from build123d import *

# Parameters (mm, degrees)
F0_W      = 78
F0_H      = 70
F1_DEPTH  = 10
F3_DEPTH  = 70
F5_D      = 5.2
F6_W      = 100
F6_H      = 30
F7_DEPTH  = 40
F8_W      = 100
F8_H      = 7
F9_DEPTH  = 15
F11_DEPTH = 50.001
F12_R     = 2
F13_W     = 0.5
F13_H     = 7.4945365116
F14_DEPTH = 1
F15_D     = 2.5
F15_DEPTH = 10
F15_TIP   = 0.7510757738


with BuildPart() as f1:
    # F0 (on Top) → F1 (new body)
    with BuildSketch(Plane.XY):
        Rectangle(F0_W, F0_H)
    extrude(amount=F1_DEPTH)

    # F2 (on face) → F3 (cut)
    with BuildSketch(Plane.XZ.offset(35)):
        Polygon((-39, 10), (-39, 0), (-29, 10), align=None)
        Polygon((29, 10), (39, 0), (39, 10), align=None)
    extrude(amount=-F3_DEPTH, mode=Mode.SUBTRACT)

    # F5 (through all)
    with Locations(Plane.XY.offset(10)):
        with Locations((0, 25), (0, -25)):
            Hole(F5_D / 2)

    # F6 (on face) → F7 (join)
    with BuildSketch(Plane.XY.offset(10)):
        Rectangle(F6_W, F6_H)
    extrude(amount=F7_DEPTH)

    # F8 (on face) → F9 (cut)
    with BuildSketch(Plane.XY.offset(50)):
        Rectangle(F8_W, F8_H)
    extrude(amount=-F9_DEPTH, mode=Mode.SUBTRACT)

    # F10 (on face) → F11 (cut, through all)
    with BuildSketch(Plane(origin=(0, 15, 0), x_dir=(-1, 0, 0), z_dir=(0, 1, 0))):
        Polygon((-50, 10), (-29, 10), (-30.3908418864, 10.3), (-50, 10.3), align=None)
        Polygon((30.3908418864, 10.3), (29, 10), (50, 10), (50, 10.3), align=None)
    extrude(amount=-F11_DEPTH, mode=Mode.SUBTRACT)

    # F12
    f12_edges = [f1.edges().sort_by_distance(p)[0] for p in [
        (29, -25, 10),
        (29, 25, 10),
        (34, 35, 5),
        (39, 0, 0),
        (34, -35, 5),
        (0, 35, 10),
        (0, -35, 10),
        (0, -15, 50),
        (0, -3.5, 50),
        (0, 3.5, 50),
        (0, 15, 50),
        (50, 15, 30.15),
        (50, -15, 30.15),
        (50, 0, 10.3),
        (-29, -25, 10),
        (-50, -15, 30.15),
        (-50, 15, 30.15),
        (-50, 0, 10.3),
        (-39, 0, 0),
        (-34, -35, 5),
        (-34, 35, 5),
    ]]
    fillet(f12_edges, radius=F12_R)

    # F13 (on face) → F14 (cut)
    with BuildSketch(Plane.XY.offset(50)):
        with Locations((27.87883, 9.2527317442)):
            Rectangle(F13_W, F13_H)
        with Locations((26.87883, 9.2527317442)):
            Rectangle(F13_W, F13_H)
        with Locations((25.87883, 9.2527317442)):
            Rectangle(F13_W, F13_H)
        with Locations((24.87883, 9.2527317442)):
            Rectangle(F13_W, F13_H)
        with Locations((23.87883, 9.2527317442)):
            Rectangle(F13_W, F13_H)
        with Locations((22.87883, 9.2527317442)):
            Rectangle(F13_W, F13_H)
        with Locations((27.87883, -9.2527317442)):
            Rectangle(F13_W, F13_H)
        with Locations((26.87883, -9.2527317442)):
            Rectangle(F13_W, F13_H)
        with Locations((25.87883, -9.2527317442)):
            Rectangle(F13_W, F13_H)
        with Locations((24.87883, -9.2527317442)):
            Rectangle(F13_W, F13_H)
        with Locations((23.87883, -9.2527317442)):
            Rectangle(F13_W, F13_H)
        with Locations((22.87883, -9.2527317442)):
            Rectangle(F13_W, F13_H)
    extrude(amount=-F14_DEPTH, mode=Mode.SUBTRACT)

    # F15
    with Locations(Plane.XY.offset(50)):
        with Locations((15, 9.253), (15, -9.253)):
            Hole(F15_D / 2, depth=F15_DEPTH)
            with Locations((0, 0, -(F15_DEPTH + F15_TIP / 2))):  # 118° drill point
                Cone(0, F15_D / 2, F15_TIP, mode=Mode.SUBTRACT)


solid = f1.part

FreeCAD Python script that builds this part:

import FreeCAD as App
import Part
import Sketcher

V = App.Vector
Q = App.Units.Quantity


def edges_at(feature, points):
    """Names of the edges that pass closest to the given points."""
    edges = feature.Shape.Edges
    near = lambda p: min(range(len(edges)), key=lambda i: edges[i].distToShape(Part.Vertex(*p))[0])
    return sorted({f"Edge{near(p) + 1}" for p in points})

doc = App.newDocument("Part")
params = doc.addObject("Spreadsheet::Sheet", "Params")
for row, (alias, value) in enumerate([
    ("sketch1_width", "78 mm"),
    ("sketch1_height", "70 mm"),
    ("pad1_length", "10 mm"),
    ("sketch2_width", "10 mm"),
    ("pocket1_length", "70 mm"),
    ("sketch3_diameter", "5.2 mm"),
    ("hole_diameter", "5.2 mm"),
    ("sketch4_width", "100 mm"),
    ("sketch4_height", "30 mm"),
    ("pad2_length", "40 mm"),
    ("sketch5_width", "100 mm"),
    ("sketch5_height", "7 mm"),
    ("pocket2_length", "15 mm"),
    ("sketch6_width", "21 mm"),
    ("sketch6_height", "0.3 mm"),
    ("fillet_radius", "2 mm"),
    ("sketch7_width", "0.5 mm"),
    ("pocket4_length", "1 mm"),
    ("sketch8_diameter", "2.5 mm"),
    ("hole2_diameter", "2.5 mm"),
    ("hole2_depth", "10 mm"),
], start=1):
    params.set(f"A{row}", alias)
    params.set(f"B{row}", "=" + value)
    params.setAlias(f"B{row}", alias)

body = doc.addObject("PartDesign::Body", "Body")

# Sketch on XY plane
sketch1 = doc.addObject("Sketcher::SketchObject", "Sketch")
body.addObject(sketch1)
sketch1.AttachmentSupport = (doc.XY_Plane, [""])
sketch1.MapMode = "FlatFace"
sketch1.addGeometry([
    Part.LineSegment(V(-39, 35, 0), V(-39, -35, 0)),
    Part.LineSegment(V(-39, -35, 0), V(39, -35, 0)),
    Part.LineSegment(V(39, -35, 0), V(39, 35, 0)),
    Part.LineSegment(V(39, 35, 0), V(-39, 35, 0)),
], False)
sketch1.addConstraint([
    Sketcher.Constraint("Coincident", 0, 2, 1, 1),
    Sketcher.Constraint("Coincident", 1, 2, 2, 1),
    Sketcher.Constraint("Coincident", 2, 2, 3, 1),
    Sketcher.Constraint("Coincident", 3, 2, 0, 1),
    Sketcher.Constraint("Vertical", 0),
    Sketcher.Constraint("Horizontal", 1),
    Sketcher.Constraint("Vertical", 2),
    Sketcher.Constraint("Horizontal", 3),
    Sketcher.Constraint("Symmetric", 0, 2, 2, 2, -1, 1),
    Sketcher.Constraint("DistanceX", 1, 1, 1, 2, Q("78 mm")),
    Sketcher.Constraint("DistanceY", 0, 2, 0, 1, Q("70 mm")),
])
sketch1.setExpression("Constraints[9]", "Params.sketch1_width")
sketch1.setExpression("Constraints[10]", "Params.sketch1_height")
pad1 = doc.addObject("PartDesign::Pad", "Pad")
body.addObject(pad1)
pad1.Profile = sketch1
pad1.setExpression("Length", "Params.pad1_length")

# Sketch on XZ plane
sketch2 = doc.addObject("Sketcher::SketchObject", "Sketch001")
body.addObject(sketch2)
sketch2.AttachmentSupport = (doc.XZ_Plane, [""])
sketch2.MapMode = "FlatFace"
sketch2.AttachmentOffset = App.Placement(V(0, 0, 35), App.Rotation())
sketch2.addGeometry([
    Part.LineSegment(V(-39, 10, 0), V(-39, 0, 0)),  # 0
    Part.LineSegment(V(-39, 0, 0), V(-29, 10, 0)),  # 1
    Part.LineSegment(V(-29, 10, 0), V(-39, 10, 0)),  # 2
    Part.LineSegment(V(29, 10, 0), V(39, 0, 0)),  # 3
    Part.LineSegment(V(39, 0, 0), V(39, 10, 0)),  # 4
    Part.LineSegment(V(39, 10, 0), V(29, 10, 0)),  # 5
], False)
sketch2.addConstraint([
    Sketcher.Constraint("Coincident", 0, 2, 1, 1),
    Sketcher.Constraint("Coincident", 1, 2, 2, 1),
    Sketcher.Constraint("Coincident", 2, 2, 0, 1),
    Sketcher.Constraint("Coincident", 3, 2, 4, 1),
    Sketcher.Constraint("Coincident", 4, 2, 5, 1),
    Sketcher.Constraint("Coincident", 5, 2, 3, 1),
    Sketcher.Constraint("Vertical", 0),
    Sketcher.Constraint("Horizontal", 2),
    Sketcher.Constraint("Vertical", 4),
    Sketcher.Constraint("Horizontal", 5),
    Sketcher.Constraint("Symmetric", 0, 2, 3, 2, -1, 1),
    Sketcher.Constraint("Symmetric", 1, 2, 5, 2, -2),
    Sketcher.Constraint("PointOnObject", 0, 2, -1),
    Sketcher.Constraint("Perpendicular", 1, 3),
    Sketcher.Constraint("DistanceX", 2, 2, 2, 1, Q("10 mm")),
    Sketcher.Constraint("DistanceX", 0, 2, -1, 1, Q("39 mm")),
])
sketch2.setExpression("Constraints[14]", "Params.sketch2_width")
pocket1 = doc.addObject("PartDesign::Pocket", "Pocket")
body.addObject(pocket1)
pocket1.Profile = sketch2
pocket1.setExpression("Length", "Params.pocket1_length")

# Sketch on XY plane
sketch3 = doc.addObject("Sketcher::SketchObject", "Sketch002")
body.addObject(sketch3)
sketch3.AttachmentSupport = (doc.XY_Plane, [""])
sketch3.MapMode = "FlatFace"
sketch3.AttachmentOffset = App.Placement(V(0, 0, 10), App.Rotation())
sketch3.addGeometry([
    Part.Circle(V(0, 25, 0), V(0, 0, 1), 2.6),
    Part.Circle(V(0, -25, 0), V(0, 0, 1), 2.6),
], False)
sketch3.addConstraint([
    Sketcher.Constraint("Equal", 0, 1),
    Sketcher.Constraint("Symmetric", 0, 3, 1, 3, -1, 1),
    Sketcher.Constraint("PointOnObject", 0, 3, -2),
    Sketcher.Constraint("Diameter", 0, Q("5.2 mm")),
    Sketcher.Constraint("DistanceY", -1, 1, 0, 3, Q("25 mm")),
])
sketch3.setExpression("Constraints[3]", "Params.sketch3_diameter")
doc.recompute()
hole = doc.addObject("PartDesign::Hole", "Hole")
body.addObject(hole)
hole.Profile = sketch3
hole.ThreadType = "None"
hole.setExpression("Diameter", "Params.hole_diameter")
hole.DepthType = "ThroughAll"

# Sketch on XY plane
sketch4 = doc.addObject("Sketcher::SketchObject", "Sketch003")
body.addObject(sketch4)
sketch4.AttachmentSupport = (doc.XY_Plane, [""])
sketch4.MapMode = "FlatFace"
sketch4.AttachmentOffset = App.Placement(V(0, 0, 10), App.Rotation())
sketch4.addGeometry([
    Part.LineSegment(V(-50, 15, 0), V(-50, -15, 0)),
    Part.LineSegment(V(-50, -15, 0), V(50, -15, 0)),
    Part.LineSegment(V(50, -15, 0), V(50, 15, 0)),
    Part.LineSegment(V(50, 15, 0), V(-50, 15, 0)),
], False)
sketch4.addConstraint([
    Sketcher.Constraint("Coincident", 0, 2, 1, 1),
    Sketcher.Constraint("Coincident", 1, 2, 2, 1),
    Sketcher.Constraint("Coincident", 2, 2, 3, 1),
    Sketcher.Constraint("Coincident", 3, 2, 0, 1),
    Sketcher.Constraint("Vertical", 0),
    Sketcher.Constraint("Horizontal", 1),
    Sketcher.Constraint("Vertical", 2),
    Sketcher.Constraint("Horizontal", 3),
    Sketcher.Constraint("Symmetric", 0, 2, 2, 2, -1, 1),
    Sketcher.Constraint("DistanceX", 1, 1, 1, 2, Q("100 mm")),
    Sketcher.Constraint("DistanceY", 0, 2, 0, 1, Q("30 mm")),
])
sketch4.setExpression("Constraints[9]", "Params.sketch4_width")
sketch4.setExpression("Constraints[10]", "Params.sketch4_height")
pad2 = doc.addObject("PartDesign::Pad", "Pad001")
body.addObject(pad2)
pad2.Profile = sketch4
pad2.setExpression("Length", "Params.pad2_length")

# Sketch on XY plane
sketch5 = doc.addObject("Sketcher::SketchObject", "Sketch004")
body.addObject(sketch5)
sketch5.AttachmentSupport = (doc.XY_Plane, [""])
sketch5.MapMode = "FlatFace"
sketch5.AttachmentOffset = App.Placement(V(0, 0, 50), App.Rotation())
sketch5.addGeometry([
    Part.LineSegment(V(-50, 4, 0), V(-50, -4, 0)),
    Part.LineSegment(V(-50, -4, 0), V(50, -4, 0)),
    Part.LineSegment(V(50, -4, 0), V(50, 4, 0)),
    Part.LineSegment(V(50, 4, 0), V(-50, 4, 0)),
], False)
sketch5.addConstraint([
    Sketcher.Constraint("Coincident", 0, 2, 1, 1),
    Sketcher.Constraint("Coincident", 1, 2, 2, 1),
    Sketcher.Constraint("Coincident", 2, 2, 3, 1),
    Sketcher.Constraint("Coincident", 3, 2, 0, 1),
    Sketcher.Constraint("Vertical", 0),
    Sketcher.Constraint("Horizontal", 1),
    Sketcher.Constraint("Vertical", 2),
    Sketcher.Constraint("Horizontal", 3),
    Sketcher.Constraint("Symmetric", 0, 2, 2, 2, -1, 1),
    Sketcher.Constraint("DistanceX", 1, 1, 1, 2, Q("100 mm")),
    Sketcher.Constraint("DistanceY", 0, 2, 0, 1, Q("7 mm")),
])
sketch5.setExpression("Constraints[9]", "Params.sketch5_width")
sketch5.setExpression("Constraints[10]", "Params.sketch5_height")
pocket2 = doc.addObject("PartDesign::Pocket", "Pocket001")
body.addObject(pocket2)
pocket2.Profile = sketch5
pocket2.setExpression("Length", "Params.pocket2_length")

# Sketch on XZ plane
sketch6 = doc.addObject("Sketcher::SketchObject", "Sketch005")
body.addObject(sketch6)
sketch6.AttachmentSupport = (doc.XZ_Plane, [""])
sketch6.MapMode = "FlatFace"
sketch6.AttachmentOffset = App.Placement(V(0, 0, -15), App.Rotation())
sketch6.addGeometry([
    Part.LineSegment(V(50, 10, 0), V(29, 10, 0)),  # 0
    Part.LineSegment(V(29, 10, 0), V(30.39, 10.3, 0)),  # 1
    Part.LineSegment(V(30.39, 10.3, 0), V(50, 10.3, 0)),  # 2
    Part.LineSegment(V(50, 10.3, 0), V(50, 10, 0)),  # 3
    Part.LineSegment(V(-30.39, 10.3, 0), V(-29, 10, 0)),  # 4
    Part.LineSegment(V(-29, 10, 0), V(-50, 10, 0)),  # 5
    Part.LineSegment(V(-50, 10, 0), V(-50, 10.3, 0)),  # 6
    Part.LineSegment(V(-50, 10.3, 0), V(-30.39, 10.3, 0)),  # 7
], False)
sketch6.addConstraint([
    Sketcher.Constraint("Coincident", 0, 2, 1, 1),
    Sketcher.Constraint("Coincident", 1, 2, 2, 1),
    Sketcher.Constraint("Coincident", 2, 2, 3, 1),
    Sketcher.Constraint("Coincident", 3, 2, 0, 1),
    Sketcher.Constraint("Coincident", 4, 2, 5, 1),
    Sketcher.Constraint("Coincident", 5, 2, 6, 1),
    Sketcher.Constraint("Coincident", 6, 2, 7, 1),
    Sketcher.Constraint("Coincident", 7, 2, 4, 1),
    Sketcher.Constraint("Horizontal", 0),
    Sketcher.Constraint("Horizontal", 2),
    Sketcher.Constraint("Vertical", 3),
    Sketcher.Constraint("Horizontal", 5),
    Sketcher.Constraint("Vertical", 6),
    Sketcher.Constraint("Horizontal", 7),
    Sketcher.Constraint("Symmetric", 0, 2, 4, 2, -2),
    Sketcher.Constraint("Symmetric", 2, 2, 6, 2, -2),
    Sketcher.Constraint("Equal", 2, 7),
    Sketcher.Constraint("DistanceX", 0, 2, 0, 1, Q("21 mm")),
    Sketcher.Constraint("DistanceY", 3, 2, 3, 1, Q("0.3 mm")),
    Sketcher.Constraint("DistanceX", -1, 1, 0, 2, Q("29 mm")),
    Sketcher.Constraint("DistanceY", -1, 1, 0, 2, Q("10 mm")),
    Sketcher.Constraint("DistanceX", 2, 1, 2, 2, Q("19.609158 mm")),
])
sketch6.setExpression("Constraints[17]", "Params.sketch6_width")
sketch6.setExpression("Constraints[18]", "Params.sketch6_height")
pocket3 = doc.addObject("PartDesign::Pocket", "Pocket002")
body.addObject(pocket3)
pocket3.Profile = sketch6
pocket3.Type = "ThroughAll"
pocket3.Reversed = True
doc.recompute()

fillet = doc.addObject("PartDesign::Fillet", "Fillet")
body.addObject(fillet)
fillet.Base = (pocket3, edges_at(pocket3, [
    (29, -25, 10),
    (29, 25, 10),
    (34, 35, 5),
    (39, 0, 0),
    (34, -35, 5),
    (0, 35, 10),
    (0, -35, 10),
    (0, -15, 50),
    (0, -3.5, 50),
    (0, 3.5, 50),
    (0, 15, 50),
    (50, 15, 30.15),
    (50, -15, 30.15),
    (50, 0, 10.3),
    (-29, -25, 10),
    (-50, -15, 30.15),
    (-50, 15, 30.15),
    (-50, 0, 10.3),
    (-39, 0, 0),
    (-34, -35, 5),
    (-34, 35, 5),
]))
fillet.setExpression("Radius", "Params.fillet_radius")

# Sketch on XY plane
sketch7 = doc.addObject("Sketcher::SketchObject", "Sketch006")
body.addObject(sketch7)
sketch7.AttachmentSupport = (doc.XY_Plane, [""])
sketch7.MapMode = "FlatFace"
sketch7.AttachmentOffset = App.Placement(V(0, 0, 50), App.Rotation())
sketch7.addGeometry([
    Part.LineSegment(V(27.6, 13, 0), V(27.6, 5.5, 0)),  # 0
    Part.LineSegment(V(27.6, 5.5, 0), V(28.1, 5.5, 0)),  # 1
    Part.LineSegment(V(28.1, 5.5, 0), V(28.1, 13, 0)),  # 2
    Part.LineSegment(V(28.1, 13, 0), V(27.6, 13, 0)),  # 3
    Part.LineSegment(V(26.6, 13, 0), V(26.6, 5.5, 0)),  # 4
    Part.LineSegment(V(26.6, 5.5, 0), V(27.1, 5.5, 0)),  # 5
    Part.LineSegment(V(27.1, 5.5, 0), V(27.1, 13, 0)),  # 6
    Part.LineSegment(V(27.1, 13, 0), V(26.6, 13, 0)),  # 7
    Part.LineSegment(V(25.6, 13, 0), V(25.6, 5.5, 0)),  # 8
    Part.LineSegment(V(25.6, 5.5, 0), V(26.1, 5.5, 0)),  # 9
    Part.LineSegment(V(26.1, 5.5, 0), V(26.1, 13, 0)),  # 10
    Part.LineSegment(V(26.1, 13, 0), V(25.6, 13, 0)),  # 11
    Part.LineSegment(V(24.6, 13, 0), V(24.6, 5.5, 0)),  # 12
    Part.LineSegment(V(24.6, 5.5, 0), V(25.1, 5.5, 0)),  # 13
    Part.LineSegment(V(25.1, 5.5, 0), V(25.1, 13, 0)),  # 14
    Part.LineSegment(V(25.1, 13, 0), V(24.6, 13, 0)),  # 15
    Part.LineSegment(V(23.6, 13, 0), V(23.6, 5.5, 0)),  # 16
    Part.LineSegment(V(23.6, 5.5, 0), V(24.1, 5.5, 0)),  # 17
    Part.LineSegment(V(24.1, 5.5, 0), V(24.1, 13, 0)),  # 18
    Part.LineSegment(V(24.1, 13, 0), V(23.6, 13, 0)),  # 19
    Part.LineSegment(V(22.6, 13, 0), V(22.6, 5.5, 0)),  # 20
    Part.LineSegment(V(22.6, 5.5, 0), V(23.1, 5.5, 0)),  # 21
    Part.LineSegment(V(23.1, 5.5, 0), V(23.1, 13, 0)),  # 22
    Part.LineSegment(V(23.1, 13, 0), V(22.6, 13, 0)),  # 23
    Part.LineSegment(V(27.6, -5.5, 0), V(27.6, -13, 0)),  # 24
    Part.LineSegment(V(27.6, -13, 0), V(28.1, -13, 0)),  # 25
    Part.LineSegment(V(28.1, -13, 0), V(28.1, -5.5, 0)),  # 26
    Part.LineSegment(V(28.1, -5.5, 0), V(27.6, -5.5, 0)),  # 27
    Part.LineSegment(V(26.6, -5.5, 0), V(26.6, -13, 0)),  # 28
    Part.LineSegment(V(26.6, -13, 0), V(27.1, -13, 0)),  # 29
    Part.LineSegment(V(27.1, -13, 0), V(27.1, -5.5, 0)),  # 30
    Part.LineSegment(V(27.1, -5.5, 0), V(26.6, -5.5, 0)),  # 31
    Part.LineSegment(V(25.6, -5.5, 0), V(25.6, -13, 0)),  # 32
    Part.LineSegment(V(25.6, -13, 0), V(26.1, -13, 0)),  # 33
    Part.LineSegment(V(26.1, -13, 0), V(26.1, -5.5, 0)),  # 34
    Part.LineSegment(V(26.1, -5.5, 0), V(25.6, -5.5, 0)),  # 35
    Part.LineSegment(V(24.6, -5.5, 0), V(24.6, -13, 0)),  # 36
    Part.LineSegment(V(24.6, -13, 0), V(25.1, -13, 0)),  # 37
    Part.LineSegment(V(25.1, -13, 0), V(25.1, -5.5, 0)),  # 38
    Part.LineSegment(V(25.1, -5.5, 0), V(24.6, -5.5, 0)),  # 39
    Part.LineSegment(V(23.6, -5.5, 0), V(23.6, -13, 0)),  # 40
    Part.LineSegment(V(23.6, -13, 0), V(24.1, -13, 0)),  # 41
    Part.LineSegment(V(24.1, -13, 0), V(24.1, -5.5, 0)),  # 42
    Part.LineSegment(V(24.1, -5.5, 0), V(23.6, -5.5, 0)),  # 43
    Part.LineSegment(V(22.6, -5.5, 0), V(22.6, -13, 0)),  # 44
    Part.LineSegment(V(22.6, -13, 0), V(23.1, -13, 0)),  # 45
    Part.LineSegment(V(23.1, -13, 0), V(23.1, -5.5, 0)),  # 46
    Part.LineSegment(V(23.1, -5.5, 0), V(22.6, -5.5, 0)),  # 47
], False)
sketch7.addConstraint([
    Sketcher.Constraint("Coincident", 0, 2, 1, 1),
    Sketcher.Constraint("Coincident", 1, 2, 2, 1),
    Sketcher.Constraint("Coincident", 2, 2, 3, 1),
    Sketcher.Constraint("Coincident", 3, 2, 0, 1),
    Sketcher.Constraint("Coincident", 4, 2, 5, 1),
    Sketcher.Constraint("Coincident", 5, 2, 6, 1),
    Sketcher.Constraint("Coincident", 6, 2, 7, 1),
    Sketcher.Constraint("Coincident", 7, 2, 4, 1),
    Sketcher.Constraint("Coincident", 8, 2, 9, 1),
    Sketcher.Constraint("Coincident", 9, 2, 10, 1),
    Sketcher.Constraint("Coincident", 10, 2, 11, 1),
    Sketcher.Constraint("Coincident", 11, 2, 8, 1),
    Sketcher.Constraint("Coincident", 12, 2, 13, 1),
    Sketcher.Constraint("Coincident", 13, 2, 14, 1),
    Sketcher.Constraint("Coincident", 14, 2, 15, 1),
    Sketcher.Constraint("Coincident", 15, 2, 12, 1),
    Sketcher.Constraint("Coincident", 16, 2, 17, 1),
    Sketcher.Constraint("Coincident", 17, 2, 18, 1),
    Sketcher.Constraint("Coincident", 18, 2, 19, 1),
    Sketcher.Constraint("Coincident", 19, 2, 16, 1),
    Sketcher.Constraint("Coincident", 20, 2, 21, 1),
    Sketcher.Constraint("Coincident", 21, 2, 22, 1),
    Sketcher.Constraint("Coincident", 22, 2, 23, 1),
    Sketcher.Constraint("Coincident", 23, 2, 20, 1),
    Sketcher.Constraint("Coincident", 24, 2, 25, 1),
    Sketcher.Constraint("Coincident", 25, 2, 26, 1),
    Sketcher.Constraint("Coincident", 26, 2, 27, 1),
    Sketcher.Constraint("Coincident", 27, 2, 24, 1),
    Sketcher.Constraint("Coincident", 28, 2, 29, 1),
    Sketcher.Constraint("Coincident", 29, 2, 30, 1),
    Sketcher.Constraint("Coincident", 30, 2, 31, 1),
    Sketcher.Constraint("Coincident", 31, 2, 28, 1),
    Sketcher.Constraint("Coincident", 32, 2, 33, 1),
    Sketcher.Constraint("Coincident", 33, 2, 34, 1),
    Sketcher.Constraint("Coincident", 34, 2, 35, 1),
    Sketcher.Constraint("Coincident", 35, 2, 32, 1),
    Sketcher.Constraint("Coincident", 36, 2, 37, 1),
    Sketcher.Constraint("Coincident", 37, 2, 38, 1),
    Sketcher.Constraint("Coincident", 38, 2, 39, 1),
    Sketcher.Constraint("Coincident", 39, 2, 36, 1),
    Sketcher.Constraint("Coincident", 40, 2, 41, 1),
    Sketcher.Constraint("Coincident", 41, 2, 42, 1),
    Sketcher.Constraint("Coincident", 42, 2, 43, 1),
    Sketcher.Constraint("Coincident", 43, 2, 40, 1),
    Sketcher.Constraint("Coincident", 44, 2, 45, 1),
    Sketcher.Constraint("Coincident", 45, 2, 46, 1),
    Sketcher.Constraint("Coincident", 46, 2, 47, 1),
    Sketcher.Constraint("Coincident", 47, 2, 44, 1),
    Sketcher.Constraint("Vertical", 0),
    Sketcher.Constraint("Horizontal", 1),
    Sketcher.Constraint("Vertical", 2),
    Sketcher.Constraint("Horizontal", 3),
    Sketcher.Constraint("Vertical", 4),
    Sketcher.Constraint("Horizontal", 5),
    Sketcher.Constraint("Vertical", 6),
    Sketcher.Constraint("Horizontal", 7),
    Sketcher.Constraint("Vertical", 8),
    Sketcher.Constraint("Horizontal", 9),
    Sketcher.Constraint("Vertical", 10),
    Sketcher.Constraint("Horizontal", 11),
    Sketcher.Constraint("Vertical", 12),
    Sketcher.Constraint("Horizontal", 13),
    Sketcher.Constraint("Vertical", 14),
    Sketcher.Constraint("Horizontal", 15),
    Sketcher.Constraint("Vertical", 16),
    Sketcher.Constraint("Horizontal", 17),
    Sketcher.Constraint("Vertical", 18),
    Sketcher.Constraint("Horizontal", 19),
    Sketcher.Constraint("Vertical", 20),
    Sketcher.Constraint("Horizontal", 21),
    Sketcher.Constraint("Vertical", 22),
    Sketcher.Constraint("Horizontal", 23),
    Sketcher.Constraint("Vertical", 24),
    Sketcher.Constraint("Horizontal", 25),
    Sketcher.Constraint("Vertical", 26),
    Sketcher.Constraint("Horizontal", 27),
    Sketcher.Constraint("Vertical", 28),
    Sketcher.Constraint("Horizontal", 29),
    Sketcher.Constraint("Vertical", 30),
    Sketcher.Constraint("Horizontal", 31),
    Sketcher.Constraint("Vertical", 32),
    Sketcher.Constraint("Horizontal", 33),
    Sketcher.Constraint("Vertical", 34),
    Sketcher.Constraint("Horizontal", 35),
    Sketcher.Constraint("Vertical", 36),
    Sketcher.Constraint("Horizontal", 37),
    Sketcher.Constraint("Vertical", 38),
    Sketcher.Constraint("Horizontal", 39),
    Sketcher.Constraint("Vertical", 40),
    Sketcher.Constraint("Horizontal", 41),
    Sketcher.Constraint("Vertical", 42),
    Sketcher.Constraint("Horizontal", 43),
    Sketcher.Constraint("Vertical", 44),
    Sketcher.Constraint("Horizontal", 45),
    Sketcher.Constraint("Vertical", 46),
    Sketcher.Constraint("Horizontal", 47),
    Sketcher.Constraint("Symmetric", 3, 2, 24, 2, -1),
    Sketcher.Constraint("Symmetric", 1, 2, 26, 2, -1),
    Sketcher.Constraint("Symmetric", 7, 2, 28, 2, -1),
    Sketcher.Constraint("Symmetric", 5, 2, 30, 2, -1),
    Sketcher.Constraint("Symmetric", 11, 2, 32, 2, -1),
    Sketcher.Constraint("Symmetric", 9, 2, 34, 2, -1),
    Sketcher.Constraint("Symmetric", 15, 2, 36, 2, -1),
    Sketcher.Constraint("Symmetric", 13, 2, 38, 2, -1),
    Sketcher.Constraint("Symmetric", 19, 2, 40, 2, -1),
    Sketcher.Constraint("Symmetric", 17, 2, 42, 2, -1),
    Sketcher.Constraint("Symmetric", 23, 2, 44, 2, -1),
    Sketcher.Constraint("Symmetric", 21, 2, 46, 2, -1),
    Sketcher.Constraint("Horizontal", 1, 2, 4, 2),
    Sketcher.Constraint("Horizontal", 3, 2, 6, 2),
    Sketcher.Constraint("Horizontal", 5, 2, 8, 2),
    Sketcher.Constraint("Horizontal", 7, 2, 10, 2),
    Sketcher.Constraint("Horizontal", 9, 2, 12, 2),
    Sketcher.Constraint("Horizontal", 11, 2, 14, 2),
    Sketcher.Constraint("Horizontal", 13, 2, 16, 2),
    Sketcher.Constraint("Horizontal", 15, 2, 18, 2),
    Sketcher.Constraint("Horizontal", 17, 2, 20, 2),
    Sketcher.Constraint("Horizontal", 19, 2, 22, 2),
    Sketcher.Constraint("Equal", 3, 5),
    Sketcher.Constraint("Equal", 7, 9),
    Sketcher.Constraint("Equal", 11, 13),
    Sketcher.Constraint("Equal", 15, 17),
    Sketcher.Constraint("Equal", 19, 21),
    Sketcher.Constraint("DistanceX", 1, 1, 1, 2, Q("0.5 mm")),
    Sketcher.Constraint("DistanceY", -1, 1, 2, 2, Q("13 mm")),
    Sketcher.Constraint("DistanceX", 4, 2, 0, 2, Q("1 mm")),
    Sketcher.Constraint("DistanceX", 8, 2, 4, 2, Q("1 mm")),
    Sketcher.Constraint("DistanceX", 12, 2, 8, 2, Q("1 mm")),
    Sketcher.Constraint("DistanceX", 16, 2, 12, 2, Q("1 mm")),
    Sketcher.Constraint("DistanceX", 20, 2, 16, 2, Q("1 mm")),
    Sketcher.Constraint("DistanceY", 0, 2, 0, 1, Q("7.494537 mm")),
    Sketcher.Constraint("DistanceX", -1, 1, 0, 2, Q("27.62883 mm")),
])
sketch7.setExpression("Constraints[123]", "Params.sketch7_width")
pocket4 = doc.addObject("PartDesign::Pocket", "Pocket003")
body.addObject(pocket4)
pocket4.Profile = sketch7
pocket4.setExpression("Length", "Params.pocket4_length")

# Sketch on XY plane
sketch8 = doc.addObject("Sketcher::SketchObject", "Sketch007")
body.addObject(sketch8)
sketch8.AttachmentSupport = (doc.XY_Plane, [""])
sketch8.MapMode = "FlatFace"
sketch8.AttachmentOffset = App.Placement(V(0, 0, 50), App.Rotation())
sketch8.addGeometry([
    Part.Circle(V(15, 9.3, 0), V(0, 0, 1), 1.2),
    Part.Circle(V(15, -9.3, 0), V(0, 0, 1), 1.2),
], False)
sketch8.addConstraint([
    Sketcher.Constraint("Equal", 0, 1),
    Sketcher.Constraint("Symmetric", 0, 3, 1, 3, -1),
    Sketcher.Constraint("Diameter", 0, Q("2.5 mm")),
    Sketcher.Constraint("DistanceX", -1, 1, 0, 3, Q("15 mm")),
    Sketcher.Constraint("DistanceY", -1, 1, 0, 3, Q("9.253 mm")),
])
sketch8.setExpression("Constraints[2]", "Params.sketch8_diameter")
doc.recompute()
hole2 = doc.addObject("PartDesign::Hole", "Hole001")
body.addObject(hole2)
hole2.Profile = sketch8
hole2.ThreadType = "None"
hole2.setExpression("Diameter", "Params.hole2_diameter")
hole2.DepthType = "Dimension"
hole2.setExpression("Depth", "Params.hole2_depth")
hole2.DrillPoint = "Angled"
hole2.DrillPointAngle = 118

doc.recompute()
